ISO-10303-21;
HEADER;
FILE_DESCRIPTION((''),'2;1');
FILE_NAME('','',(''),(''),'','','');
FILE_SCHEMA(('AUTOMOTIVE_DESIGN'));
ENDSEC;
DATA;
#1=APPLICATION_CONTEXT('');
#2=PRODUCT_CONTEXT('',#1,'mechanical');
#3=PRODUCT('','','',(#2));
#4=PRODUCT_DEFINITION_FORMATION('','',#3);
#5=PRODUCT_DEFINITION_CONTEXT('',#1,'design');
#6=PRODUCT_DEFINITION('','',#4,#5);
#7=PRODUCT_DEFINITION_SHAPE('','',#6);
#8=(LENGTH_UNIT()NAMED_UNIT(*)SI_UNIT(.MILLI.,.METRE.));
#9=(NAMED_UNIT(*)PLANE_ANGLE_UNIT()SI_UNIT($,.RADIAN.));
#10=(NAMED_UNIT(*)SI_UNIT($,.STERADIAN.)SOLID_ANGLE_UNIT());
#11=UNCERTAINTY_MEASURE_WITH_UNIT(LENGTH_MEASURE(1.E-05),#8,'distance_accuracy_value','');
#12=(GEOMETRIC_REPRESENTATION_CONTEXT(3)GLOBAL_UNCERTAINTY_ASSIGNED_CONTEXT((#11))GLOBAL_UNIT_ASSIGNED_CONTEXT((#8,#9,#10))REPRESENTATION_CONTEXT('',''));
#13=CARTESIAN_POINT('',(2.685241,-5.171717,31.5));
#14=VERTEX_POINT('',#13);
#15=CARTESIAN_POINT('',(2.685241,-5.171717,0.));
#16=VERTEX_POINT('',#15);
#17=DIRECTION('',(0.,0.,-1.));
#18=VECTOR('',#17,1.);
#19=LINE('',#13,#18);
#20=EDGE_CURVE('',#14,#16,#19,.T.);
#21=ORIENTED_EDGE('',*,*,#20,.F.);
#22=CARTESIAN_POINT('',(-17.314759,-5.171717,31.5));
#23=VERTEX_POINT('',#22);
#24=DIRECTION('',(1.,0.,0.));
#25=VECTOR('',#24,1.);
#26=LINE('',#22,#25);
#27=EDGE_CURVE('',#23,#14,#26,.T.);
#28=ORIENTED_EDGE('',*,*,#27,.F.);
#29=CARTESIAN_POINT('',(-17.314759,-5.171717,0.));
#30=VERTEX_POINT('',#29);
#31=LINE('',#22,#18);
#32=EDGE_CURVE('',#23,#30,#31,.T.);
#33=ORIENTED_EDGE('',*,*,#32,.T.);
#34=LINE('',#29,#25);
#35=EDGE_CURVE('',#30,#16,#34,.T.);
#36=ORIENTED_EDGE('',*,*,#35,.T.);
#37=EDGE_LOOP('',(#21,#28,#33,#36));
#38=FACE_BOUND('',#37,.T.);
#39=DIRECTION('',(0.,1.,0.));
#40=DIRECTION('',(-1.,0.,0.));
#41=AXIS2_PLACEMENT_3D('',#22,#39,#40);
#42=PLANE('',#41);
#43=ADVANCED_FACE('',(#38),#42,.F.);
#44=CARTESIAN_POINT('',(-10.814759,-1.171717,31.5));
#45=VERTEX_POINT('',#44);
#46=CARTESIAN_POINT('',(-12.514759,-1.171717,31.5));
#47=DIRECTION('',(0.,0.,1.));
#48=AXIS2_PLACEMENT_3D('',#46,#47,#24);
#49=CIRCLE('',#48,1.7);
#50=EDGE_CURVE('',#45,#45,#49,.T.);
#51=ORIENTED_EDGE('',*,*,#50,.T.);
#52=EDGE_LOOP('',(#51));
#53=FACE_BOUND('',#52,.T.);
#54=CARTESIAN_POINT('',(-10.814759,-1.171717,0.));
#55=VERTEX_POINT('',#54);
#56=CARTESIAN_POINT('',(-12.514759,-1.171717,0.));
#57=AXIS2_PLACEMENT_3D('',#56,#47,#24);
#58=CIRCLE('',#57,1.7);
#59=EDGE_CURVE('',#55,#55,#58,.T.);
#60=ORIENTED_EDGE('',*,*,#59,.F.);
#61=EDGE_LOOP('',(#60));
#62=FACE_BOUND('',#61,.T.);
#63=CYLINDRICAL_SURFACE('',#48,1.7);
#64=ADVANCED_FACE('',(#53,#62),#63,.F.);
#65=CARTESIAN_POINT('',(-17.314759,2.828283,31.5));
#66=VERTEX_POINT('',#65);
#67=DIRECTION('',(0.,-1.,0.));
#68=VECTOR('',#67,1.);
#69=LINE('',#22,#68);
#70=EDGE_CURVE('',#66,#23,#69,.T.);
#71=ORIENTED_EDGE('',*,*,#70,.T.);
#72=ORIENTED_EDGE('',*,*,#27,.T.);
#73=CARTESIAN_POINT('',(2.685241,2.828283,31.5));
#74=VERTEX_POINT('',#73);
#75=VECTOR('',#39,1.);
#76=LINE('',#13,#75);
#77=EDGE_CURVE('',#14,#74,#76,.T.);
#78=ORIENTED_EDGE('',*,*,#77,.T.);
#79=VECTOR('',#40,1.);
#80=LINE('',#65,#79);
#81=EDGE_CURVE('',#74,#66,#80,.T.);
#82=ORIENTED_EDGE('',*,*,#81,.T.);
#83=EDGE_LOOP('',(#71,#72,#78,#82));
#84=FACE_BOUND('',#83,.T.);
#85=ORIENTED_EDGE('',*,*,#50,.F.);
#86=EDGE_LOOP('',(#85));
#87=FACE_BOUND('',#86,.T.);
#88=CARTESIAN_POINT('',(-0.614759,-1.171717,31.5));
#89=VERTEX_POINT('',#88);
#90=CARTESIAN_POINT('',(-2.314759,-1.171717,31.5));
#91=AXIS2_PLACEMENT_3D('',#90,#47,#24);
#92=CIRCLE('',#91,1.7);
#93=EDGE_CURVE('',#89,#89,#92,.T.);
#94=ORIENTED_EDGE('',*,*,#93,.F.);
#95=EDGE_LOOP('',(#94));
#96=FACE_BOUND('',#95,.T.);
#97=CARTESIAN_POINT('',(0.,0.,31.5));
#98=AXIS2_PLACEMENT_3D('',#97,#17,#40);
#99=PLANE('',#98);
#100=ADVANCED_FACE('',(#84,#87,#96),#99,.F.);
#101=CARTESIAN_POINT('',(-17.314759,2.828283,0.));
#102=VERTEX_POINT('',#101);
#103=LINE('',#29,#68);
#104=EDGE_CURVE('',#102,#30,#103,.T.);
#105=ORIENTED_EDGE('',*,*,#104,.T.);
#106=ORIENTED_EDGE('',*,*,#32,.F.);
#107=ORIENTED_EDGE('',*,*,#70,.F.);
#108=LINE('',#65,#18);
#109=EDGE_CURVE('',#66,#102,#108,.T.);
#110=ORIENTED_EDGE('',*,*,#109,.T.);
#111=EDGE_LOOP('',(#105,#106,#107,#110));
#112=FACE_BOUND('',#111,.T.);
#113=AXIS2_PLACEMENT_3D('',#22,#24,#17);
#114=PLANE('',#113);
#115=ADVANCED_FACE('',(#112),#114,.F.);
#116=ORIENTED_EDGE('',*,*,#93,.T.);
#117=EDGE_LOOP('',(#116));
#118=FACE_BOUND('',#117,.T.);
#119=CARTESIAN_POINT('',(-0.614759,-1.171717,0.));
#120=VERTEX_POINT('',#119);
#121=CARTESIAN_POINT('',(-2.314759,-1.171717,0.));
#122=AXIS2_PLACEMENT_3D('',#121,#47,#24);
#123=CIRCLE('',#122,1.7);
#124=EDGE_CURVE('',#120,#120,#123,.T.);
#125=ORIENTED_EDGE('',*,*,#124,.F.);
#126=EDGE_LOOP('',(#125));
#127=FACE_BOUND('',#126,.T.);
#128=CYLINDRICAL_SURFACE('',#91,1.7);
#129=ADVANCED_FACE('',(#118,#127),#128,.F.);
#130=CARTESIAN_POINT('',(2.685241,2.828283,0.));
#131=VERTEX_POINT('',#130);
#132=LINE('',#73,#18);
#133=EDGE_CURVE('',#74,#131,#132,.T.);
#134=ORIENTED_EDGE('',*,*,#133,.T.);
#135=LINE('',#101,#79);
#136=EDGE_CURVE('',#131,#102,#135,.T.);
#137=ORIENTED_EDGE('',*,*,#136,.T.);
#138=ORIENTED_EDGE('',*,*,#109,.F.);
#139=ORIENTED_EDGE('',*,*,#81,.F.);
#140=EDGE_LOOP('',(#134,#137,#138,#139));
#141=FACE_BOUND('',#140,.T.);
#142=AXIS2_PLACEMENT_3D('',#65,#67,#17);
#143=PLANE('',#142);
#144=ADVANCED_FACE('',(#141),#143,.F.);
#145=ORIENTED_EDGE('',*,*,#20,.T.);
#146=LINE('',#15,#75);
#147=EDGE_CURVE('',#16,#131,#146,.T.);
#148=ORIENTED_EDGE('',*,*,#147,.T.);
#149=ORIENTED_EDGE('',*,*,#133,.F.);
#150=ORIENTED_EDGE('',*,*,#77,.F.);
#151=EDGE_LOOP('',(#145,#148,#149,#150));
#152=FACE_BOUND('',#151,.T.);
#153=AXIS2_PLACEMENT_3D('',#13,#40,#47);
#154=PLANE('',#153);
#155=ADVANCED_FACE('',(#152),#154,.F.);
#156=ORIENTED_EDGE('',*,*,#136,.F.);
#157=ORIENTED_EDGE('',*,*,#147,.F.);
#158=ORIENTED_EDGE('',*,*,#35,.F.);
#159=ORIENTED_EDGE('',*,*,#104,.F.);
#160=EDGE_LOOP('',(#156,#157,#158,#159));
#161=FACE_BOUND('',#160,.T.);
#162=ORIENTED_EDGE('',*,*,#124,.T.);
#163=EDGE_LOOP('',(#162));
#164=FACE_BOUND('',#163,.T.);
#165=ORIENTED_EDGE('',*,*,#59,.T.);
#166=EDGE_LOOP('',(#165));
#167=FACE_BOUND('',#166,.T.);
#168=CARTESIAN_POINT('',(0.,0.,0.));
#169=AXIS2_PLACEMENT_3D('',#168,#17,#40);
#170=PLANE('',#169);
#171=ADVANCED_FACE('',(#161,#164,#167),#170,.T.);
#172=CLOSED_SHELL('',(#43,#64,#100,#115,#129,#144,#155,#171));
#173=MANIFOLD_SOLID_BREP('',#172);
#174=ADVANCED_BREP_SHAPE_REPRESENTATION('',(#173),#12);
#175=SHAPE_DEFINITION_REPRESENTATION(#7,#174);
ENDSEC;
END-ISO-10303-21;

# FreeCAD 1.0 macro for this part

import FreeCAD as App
import Part
import Sketcher

V = App.Vector
Q = App.Units.Quantity

doc = App.newDocument("Part")
body = doc.addObject("PartDesign::Body", "Body")

# Sketch on XY plane
sketch1 = doc.addObject("Sketcher::SketchObject", "Sketch")
body.addObject(sketch1)
sketch1.AttachmentSupport = (doc.XY_Plane, [""])
sketch1.MapMode = "FlatFace"
sketch1.addGeometry(Part.LineSegment(V(-17, 3, 0), V(-17, -5, 0)), False)
sketch1.addGeometry(Part.LineSegment(V(-17, -5, 0), V(3, -5, 0)), False)
sketch1.addGeometry(Part.LineSegment(V(3, -5, 0), V(3, 3, 0)), False)
sketch1.addGeometry(Part.LineSegment(V(3, 3, 0), V(-17, 3, 0)), False)
sketch1.addConstraint(Sketcher.Constraint("Coincident", 0, 2, 1, 1))
sketch1.addConstraint(Sketcher.Constraint("Coincident", 1, 2, 2, 1))
sketch1.addConstraint(Sketcher.Constraint("Coincident", 2, 2, 3, 1))
sketch1.addConstraint(Sketcher.Constraint("Coincident", 3, 2, 0, 1))
sketch1.addConstraint(Sketcher.Constraint("Vertical", 0))
sketch1.addConstraint(Sketcher.Constraint("Horizontal", 1))
sketch1.addConstraint(Sketcher.Constraint("Vertical", 2))
sketch1.addConstraint(Sketcher.Constraint("Horizontal", 3))
sketch1.addConstraint(Sketcher.Constraint("DistanceX", 1, 1, 1, 2, Q("20 mm")))
sketch1.addConstraint(Sketcher.Constraint("DistanceY", 0, 2, 0, 1, Q("8 mm")))
sketch1.addConstraint(Sketcher.Constraint("DistanceX", 0, 2, -1, 1, Q("17.314759 mm")))
sketch1.addConstraint(Sketcher.Constraint("DistanceY", 0, 2, -1, 1, Q("5.171717 mm")))
pad1 = doc.addObject("PartDesign::Pad", "Pad")
body.addObject(pad1)
pad1.Profile = sketch1
pad1.Length = 31.5

# Sketch on XY plane
sketch2 = doc.addObject("Sketcher::SketchObject", "Sketch001")
body.addObject(sketch2)
sketch2.AttachmentSupport = (doc.XY_Plane, [""])
sketch2.MapMode = "FlatFace"
sketch2.AttachmentOffset = App.Placement(V(0, 0, 31.5), App.Rotation())
sketch2.addGeometry(Part.Circle(V(-2.3, -1.2, 0), V(0, 0, 1), 1.7), False)
sketch2.addConstraint(Sketcher.Constraint("Diameter", 0, Q("3.4 mm")))
sketch2.addConstraint(Sketcher.Constraint("DistanceX", 0, 3, -1, 1, Q("2.314759 mm")))
sketch2.addConstraint(Sketcher.Constraint("DistanceY", 0, 3, -1, 1, Q("1.171717 mm")))
doc.recompute()
hole = doc.addObject("PartDesign::Hole", "Hole")
body.addObject(hole)
hole.Profile = sketch2
hole.ThreadType = "None"
hole.Diameter = 3.4
hole.DepthType = "ThroughAll"
doc.recompute()

linearpattern = doc.addObject("PartDesign::LinearPattern", "LinearPattern")
body.addObject(linearpattern)
linearpattern.Originals = [hole]
linearpattern.Direction = (doc.X_Axis, [""])
linearpattern.Mode = "offset"
linearpattern.Offset = 10.2
linearpattern.Occurrences = 2
linearpattern.Reversed = True
body.Tip = linearpattern

doc.recompute()
